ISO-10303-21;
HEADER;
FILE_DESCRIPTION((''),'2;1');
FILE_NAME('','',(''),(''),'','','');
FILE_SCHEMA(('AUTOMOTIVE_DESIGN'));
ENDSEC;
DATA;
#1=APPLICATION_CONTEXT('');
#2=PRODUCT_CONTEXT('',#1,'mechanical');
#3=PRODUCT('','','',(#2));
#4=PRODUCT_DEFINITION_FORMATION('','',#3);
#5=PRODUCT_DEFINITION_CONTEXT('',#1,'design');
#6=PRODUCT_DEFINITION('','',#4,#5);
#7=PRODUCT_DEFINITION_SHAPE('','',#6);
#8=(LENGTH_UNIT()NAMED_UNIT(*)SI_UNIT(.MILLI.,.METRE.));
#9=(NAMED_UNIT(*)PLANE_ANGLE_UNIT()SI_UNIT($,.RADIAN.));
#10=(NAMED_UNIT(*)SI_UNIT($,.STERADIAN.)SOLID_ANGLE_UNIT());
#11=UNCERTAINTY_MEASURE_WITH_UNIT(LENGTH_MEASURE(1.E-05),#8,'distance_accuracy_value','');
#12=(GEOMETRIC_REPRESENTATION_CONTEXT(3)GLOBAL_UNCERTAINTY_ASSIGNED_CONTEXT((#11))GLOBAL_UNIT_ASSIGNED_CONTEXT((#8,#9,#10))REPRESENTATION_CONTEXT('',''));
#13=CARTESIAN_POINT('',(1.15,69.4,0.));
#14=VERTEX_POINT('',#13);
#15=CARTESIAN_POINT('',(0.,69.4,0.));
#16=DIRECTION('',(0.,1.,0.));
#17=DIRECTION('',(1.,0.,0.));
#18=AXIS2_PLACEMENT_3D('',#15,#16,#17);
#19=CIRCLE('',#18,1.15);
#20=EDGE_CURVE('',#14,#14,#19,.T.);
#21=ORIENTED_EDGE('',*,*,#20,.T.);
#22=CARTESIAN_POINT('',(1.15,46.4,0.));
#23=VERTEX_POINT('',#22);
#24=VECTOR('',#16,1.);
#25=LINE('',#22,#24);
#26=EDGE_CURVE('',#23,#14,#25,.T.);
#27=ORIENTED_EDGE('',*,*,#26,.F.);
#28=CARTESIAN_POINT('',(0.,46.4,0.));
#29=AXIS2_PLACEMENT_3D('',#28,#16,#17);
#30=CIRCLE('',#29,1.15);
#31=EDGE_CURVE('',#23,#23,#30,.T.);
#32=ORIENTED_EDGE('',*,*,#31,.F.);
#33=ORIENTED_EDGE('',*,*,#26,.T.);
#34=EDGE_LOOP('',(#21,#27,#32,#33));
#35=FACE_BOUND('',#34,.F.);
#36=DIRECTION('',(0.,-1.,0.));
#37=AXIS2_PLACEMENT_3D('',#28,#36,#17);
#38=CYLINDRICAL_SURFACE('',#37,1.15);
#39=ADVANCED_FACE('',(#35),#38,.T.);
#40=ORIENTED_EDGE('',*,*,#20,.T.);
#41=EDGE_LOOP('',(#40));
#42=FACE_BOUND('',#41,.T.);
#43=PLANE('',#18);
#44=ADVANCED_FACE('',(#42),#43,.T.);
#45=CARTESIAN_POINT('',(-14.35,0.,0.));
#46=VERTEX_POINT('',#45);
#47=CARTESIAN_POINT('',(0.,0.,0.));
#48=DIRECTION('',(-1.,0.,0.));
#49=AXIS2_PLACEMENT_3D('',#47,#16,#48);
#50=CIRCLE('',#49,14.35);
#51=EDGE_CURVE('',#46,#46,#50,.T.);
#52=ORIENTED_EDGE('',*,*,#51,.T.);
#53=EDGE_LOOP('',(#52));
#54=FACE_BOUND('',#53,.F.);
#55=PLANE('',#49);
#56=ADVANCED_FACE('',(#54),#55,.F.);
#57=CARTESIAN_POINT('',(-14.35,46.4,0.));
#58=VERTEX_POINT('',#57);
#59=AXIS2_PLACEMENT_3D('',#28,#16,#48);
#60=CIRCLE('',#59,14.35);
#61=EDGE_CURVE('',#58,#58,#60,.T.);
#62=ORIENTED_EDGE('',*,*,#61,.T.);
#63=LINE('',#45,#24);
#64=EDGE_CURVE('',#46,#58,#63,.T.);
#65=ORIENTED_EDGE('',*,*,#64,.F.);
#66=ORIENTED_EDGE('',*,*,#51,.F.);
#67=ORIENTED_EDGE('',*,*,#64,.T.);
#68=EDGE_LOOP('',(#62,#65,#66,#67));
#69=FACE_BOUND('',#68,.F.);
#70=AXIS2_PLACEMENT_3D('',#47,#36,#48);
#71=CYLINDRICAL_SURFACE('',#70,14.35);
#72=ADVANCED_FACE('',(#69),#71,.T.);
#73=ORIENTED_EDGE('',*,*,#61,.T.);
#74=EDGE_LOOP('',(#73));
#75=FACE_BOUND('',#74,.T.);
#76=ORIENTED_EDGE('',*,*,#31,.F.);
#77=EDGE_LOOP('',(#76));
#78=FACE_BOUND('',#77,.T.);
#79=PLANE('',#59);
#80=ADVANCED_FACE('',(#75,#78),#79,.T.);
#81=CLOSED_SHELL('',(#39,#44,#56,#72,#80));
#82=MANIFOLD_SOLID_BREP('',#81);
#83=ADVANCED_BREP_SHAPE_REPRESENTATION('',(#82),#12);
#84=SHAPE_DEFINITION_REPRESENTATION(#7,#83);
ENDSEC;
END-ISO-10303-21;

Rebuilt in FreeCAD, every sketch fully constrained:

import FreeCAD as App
import Part
import Sketcher
from FreeCAD import Vector
Q = App.Units.Quantity

doc = App.newDocument("Part")
params = doc.addObject("Spreadsheet::Sheet", "Params")
for row, (alias, value) in enumerate([
    ("sketch1_diameter", "28.7 mm"),
    ("pad1_length", "46.4 mm"),
    ("sketch2_diameter", "2.3 mm"),
    ("pad2_length", "23 mm"),
], start=1):
    params.set(f"A{row}", alias)
    params.set(f"B{row}", "=" + value)
    params.setAlias(f"B{row}", alias)

body = doc.addObject("PartDesign::Body", "Body")

sketch1 = body.newObject("Sketcher::SketchObject", "Sketch")
sketch1.AttachmentSupport = (doc.getObject("XZ_Plane"), [""])
sketch1.MapMode = "FlatFace"
sketch1.addGeometry(Part.Circle(Vector(0, 0, 0), Vector(0, 0, 1), 14), False)
sketch1.addConstraint([
    Sketcher.Constraint("Coincident", 0, 3, -1, 1),
    Sketcher.Constraint("Diameter", 0, Q("28.7 mm")),
])
sketch1.setExpression("Constraints[1]", "Params.sketch1_diameter")
pad1 = body.newObject("PartDesign::Pad", "Pad")
pad1.Profile = sketch1
pad1.setExpression("Length", "Params.pad1_length")
pad1.Reversed = True

sketch2 = body.newObject("Sketcher::SketchObject", "Sketch001")
sketch2.AttachmentSupport = (doc.getObject("XZ_Plane"), [""])
sketch2.MapMode = "FlatFace"
sketch2.AttachmentOffset = App.Placement(Vector(0, 0, -46.4), App.Rotation())
sketch2.addGeometry(Part.Circle(Vector(0, 0, 0), Vector(0, 0, 1), 1.1), False)
sketch2.addConstraint([
    Sketcher.Constraint("Coincident", 0, 3, -1, 1),
    Sketcher.Constraint("Diameter", 0, Q("2.3 mm")),
])
sketch2.setExpression("Constraints[1]", "Params.sketch2_diameter")
pad2 = body.newObject("PartDesign::Pad", "Pad001")
pad2.Profile = sketch2
pad2.setExpression("Length", "Params.pad2_length")
pad2.Reversed = True

doc.recompute()
